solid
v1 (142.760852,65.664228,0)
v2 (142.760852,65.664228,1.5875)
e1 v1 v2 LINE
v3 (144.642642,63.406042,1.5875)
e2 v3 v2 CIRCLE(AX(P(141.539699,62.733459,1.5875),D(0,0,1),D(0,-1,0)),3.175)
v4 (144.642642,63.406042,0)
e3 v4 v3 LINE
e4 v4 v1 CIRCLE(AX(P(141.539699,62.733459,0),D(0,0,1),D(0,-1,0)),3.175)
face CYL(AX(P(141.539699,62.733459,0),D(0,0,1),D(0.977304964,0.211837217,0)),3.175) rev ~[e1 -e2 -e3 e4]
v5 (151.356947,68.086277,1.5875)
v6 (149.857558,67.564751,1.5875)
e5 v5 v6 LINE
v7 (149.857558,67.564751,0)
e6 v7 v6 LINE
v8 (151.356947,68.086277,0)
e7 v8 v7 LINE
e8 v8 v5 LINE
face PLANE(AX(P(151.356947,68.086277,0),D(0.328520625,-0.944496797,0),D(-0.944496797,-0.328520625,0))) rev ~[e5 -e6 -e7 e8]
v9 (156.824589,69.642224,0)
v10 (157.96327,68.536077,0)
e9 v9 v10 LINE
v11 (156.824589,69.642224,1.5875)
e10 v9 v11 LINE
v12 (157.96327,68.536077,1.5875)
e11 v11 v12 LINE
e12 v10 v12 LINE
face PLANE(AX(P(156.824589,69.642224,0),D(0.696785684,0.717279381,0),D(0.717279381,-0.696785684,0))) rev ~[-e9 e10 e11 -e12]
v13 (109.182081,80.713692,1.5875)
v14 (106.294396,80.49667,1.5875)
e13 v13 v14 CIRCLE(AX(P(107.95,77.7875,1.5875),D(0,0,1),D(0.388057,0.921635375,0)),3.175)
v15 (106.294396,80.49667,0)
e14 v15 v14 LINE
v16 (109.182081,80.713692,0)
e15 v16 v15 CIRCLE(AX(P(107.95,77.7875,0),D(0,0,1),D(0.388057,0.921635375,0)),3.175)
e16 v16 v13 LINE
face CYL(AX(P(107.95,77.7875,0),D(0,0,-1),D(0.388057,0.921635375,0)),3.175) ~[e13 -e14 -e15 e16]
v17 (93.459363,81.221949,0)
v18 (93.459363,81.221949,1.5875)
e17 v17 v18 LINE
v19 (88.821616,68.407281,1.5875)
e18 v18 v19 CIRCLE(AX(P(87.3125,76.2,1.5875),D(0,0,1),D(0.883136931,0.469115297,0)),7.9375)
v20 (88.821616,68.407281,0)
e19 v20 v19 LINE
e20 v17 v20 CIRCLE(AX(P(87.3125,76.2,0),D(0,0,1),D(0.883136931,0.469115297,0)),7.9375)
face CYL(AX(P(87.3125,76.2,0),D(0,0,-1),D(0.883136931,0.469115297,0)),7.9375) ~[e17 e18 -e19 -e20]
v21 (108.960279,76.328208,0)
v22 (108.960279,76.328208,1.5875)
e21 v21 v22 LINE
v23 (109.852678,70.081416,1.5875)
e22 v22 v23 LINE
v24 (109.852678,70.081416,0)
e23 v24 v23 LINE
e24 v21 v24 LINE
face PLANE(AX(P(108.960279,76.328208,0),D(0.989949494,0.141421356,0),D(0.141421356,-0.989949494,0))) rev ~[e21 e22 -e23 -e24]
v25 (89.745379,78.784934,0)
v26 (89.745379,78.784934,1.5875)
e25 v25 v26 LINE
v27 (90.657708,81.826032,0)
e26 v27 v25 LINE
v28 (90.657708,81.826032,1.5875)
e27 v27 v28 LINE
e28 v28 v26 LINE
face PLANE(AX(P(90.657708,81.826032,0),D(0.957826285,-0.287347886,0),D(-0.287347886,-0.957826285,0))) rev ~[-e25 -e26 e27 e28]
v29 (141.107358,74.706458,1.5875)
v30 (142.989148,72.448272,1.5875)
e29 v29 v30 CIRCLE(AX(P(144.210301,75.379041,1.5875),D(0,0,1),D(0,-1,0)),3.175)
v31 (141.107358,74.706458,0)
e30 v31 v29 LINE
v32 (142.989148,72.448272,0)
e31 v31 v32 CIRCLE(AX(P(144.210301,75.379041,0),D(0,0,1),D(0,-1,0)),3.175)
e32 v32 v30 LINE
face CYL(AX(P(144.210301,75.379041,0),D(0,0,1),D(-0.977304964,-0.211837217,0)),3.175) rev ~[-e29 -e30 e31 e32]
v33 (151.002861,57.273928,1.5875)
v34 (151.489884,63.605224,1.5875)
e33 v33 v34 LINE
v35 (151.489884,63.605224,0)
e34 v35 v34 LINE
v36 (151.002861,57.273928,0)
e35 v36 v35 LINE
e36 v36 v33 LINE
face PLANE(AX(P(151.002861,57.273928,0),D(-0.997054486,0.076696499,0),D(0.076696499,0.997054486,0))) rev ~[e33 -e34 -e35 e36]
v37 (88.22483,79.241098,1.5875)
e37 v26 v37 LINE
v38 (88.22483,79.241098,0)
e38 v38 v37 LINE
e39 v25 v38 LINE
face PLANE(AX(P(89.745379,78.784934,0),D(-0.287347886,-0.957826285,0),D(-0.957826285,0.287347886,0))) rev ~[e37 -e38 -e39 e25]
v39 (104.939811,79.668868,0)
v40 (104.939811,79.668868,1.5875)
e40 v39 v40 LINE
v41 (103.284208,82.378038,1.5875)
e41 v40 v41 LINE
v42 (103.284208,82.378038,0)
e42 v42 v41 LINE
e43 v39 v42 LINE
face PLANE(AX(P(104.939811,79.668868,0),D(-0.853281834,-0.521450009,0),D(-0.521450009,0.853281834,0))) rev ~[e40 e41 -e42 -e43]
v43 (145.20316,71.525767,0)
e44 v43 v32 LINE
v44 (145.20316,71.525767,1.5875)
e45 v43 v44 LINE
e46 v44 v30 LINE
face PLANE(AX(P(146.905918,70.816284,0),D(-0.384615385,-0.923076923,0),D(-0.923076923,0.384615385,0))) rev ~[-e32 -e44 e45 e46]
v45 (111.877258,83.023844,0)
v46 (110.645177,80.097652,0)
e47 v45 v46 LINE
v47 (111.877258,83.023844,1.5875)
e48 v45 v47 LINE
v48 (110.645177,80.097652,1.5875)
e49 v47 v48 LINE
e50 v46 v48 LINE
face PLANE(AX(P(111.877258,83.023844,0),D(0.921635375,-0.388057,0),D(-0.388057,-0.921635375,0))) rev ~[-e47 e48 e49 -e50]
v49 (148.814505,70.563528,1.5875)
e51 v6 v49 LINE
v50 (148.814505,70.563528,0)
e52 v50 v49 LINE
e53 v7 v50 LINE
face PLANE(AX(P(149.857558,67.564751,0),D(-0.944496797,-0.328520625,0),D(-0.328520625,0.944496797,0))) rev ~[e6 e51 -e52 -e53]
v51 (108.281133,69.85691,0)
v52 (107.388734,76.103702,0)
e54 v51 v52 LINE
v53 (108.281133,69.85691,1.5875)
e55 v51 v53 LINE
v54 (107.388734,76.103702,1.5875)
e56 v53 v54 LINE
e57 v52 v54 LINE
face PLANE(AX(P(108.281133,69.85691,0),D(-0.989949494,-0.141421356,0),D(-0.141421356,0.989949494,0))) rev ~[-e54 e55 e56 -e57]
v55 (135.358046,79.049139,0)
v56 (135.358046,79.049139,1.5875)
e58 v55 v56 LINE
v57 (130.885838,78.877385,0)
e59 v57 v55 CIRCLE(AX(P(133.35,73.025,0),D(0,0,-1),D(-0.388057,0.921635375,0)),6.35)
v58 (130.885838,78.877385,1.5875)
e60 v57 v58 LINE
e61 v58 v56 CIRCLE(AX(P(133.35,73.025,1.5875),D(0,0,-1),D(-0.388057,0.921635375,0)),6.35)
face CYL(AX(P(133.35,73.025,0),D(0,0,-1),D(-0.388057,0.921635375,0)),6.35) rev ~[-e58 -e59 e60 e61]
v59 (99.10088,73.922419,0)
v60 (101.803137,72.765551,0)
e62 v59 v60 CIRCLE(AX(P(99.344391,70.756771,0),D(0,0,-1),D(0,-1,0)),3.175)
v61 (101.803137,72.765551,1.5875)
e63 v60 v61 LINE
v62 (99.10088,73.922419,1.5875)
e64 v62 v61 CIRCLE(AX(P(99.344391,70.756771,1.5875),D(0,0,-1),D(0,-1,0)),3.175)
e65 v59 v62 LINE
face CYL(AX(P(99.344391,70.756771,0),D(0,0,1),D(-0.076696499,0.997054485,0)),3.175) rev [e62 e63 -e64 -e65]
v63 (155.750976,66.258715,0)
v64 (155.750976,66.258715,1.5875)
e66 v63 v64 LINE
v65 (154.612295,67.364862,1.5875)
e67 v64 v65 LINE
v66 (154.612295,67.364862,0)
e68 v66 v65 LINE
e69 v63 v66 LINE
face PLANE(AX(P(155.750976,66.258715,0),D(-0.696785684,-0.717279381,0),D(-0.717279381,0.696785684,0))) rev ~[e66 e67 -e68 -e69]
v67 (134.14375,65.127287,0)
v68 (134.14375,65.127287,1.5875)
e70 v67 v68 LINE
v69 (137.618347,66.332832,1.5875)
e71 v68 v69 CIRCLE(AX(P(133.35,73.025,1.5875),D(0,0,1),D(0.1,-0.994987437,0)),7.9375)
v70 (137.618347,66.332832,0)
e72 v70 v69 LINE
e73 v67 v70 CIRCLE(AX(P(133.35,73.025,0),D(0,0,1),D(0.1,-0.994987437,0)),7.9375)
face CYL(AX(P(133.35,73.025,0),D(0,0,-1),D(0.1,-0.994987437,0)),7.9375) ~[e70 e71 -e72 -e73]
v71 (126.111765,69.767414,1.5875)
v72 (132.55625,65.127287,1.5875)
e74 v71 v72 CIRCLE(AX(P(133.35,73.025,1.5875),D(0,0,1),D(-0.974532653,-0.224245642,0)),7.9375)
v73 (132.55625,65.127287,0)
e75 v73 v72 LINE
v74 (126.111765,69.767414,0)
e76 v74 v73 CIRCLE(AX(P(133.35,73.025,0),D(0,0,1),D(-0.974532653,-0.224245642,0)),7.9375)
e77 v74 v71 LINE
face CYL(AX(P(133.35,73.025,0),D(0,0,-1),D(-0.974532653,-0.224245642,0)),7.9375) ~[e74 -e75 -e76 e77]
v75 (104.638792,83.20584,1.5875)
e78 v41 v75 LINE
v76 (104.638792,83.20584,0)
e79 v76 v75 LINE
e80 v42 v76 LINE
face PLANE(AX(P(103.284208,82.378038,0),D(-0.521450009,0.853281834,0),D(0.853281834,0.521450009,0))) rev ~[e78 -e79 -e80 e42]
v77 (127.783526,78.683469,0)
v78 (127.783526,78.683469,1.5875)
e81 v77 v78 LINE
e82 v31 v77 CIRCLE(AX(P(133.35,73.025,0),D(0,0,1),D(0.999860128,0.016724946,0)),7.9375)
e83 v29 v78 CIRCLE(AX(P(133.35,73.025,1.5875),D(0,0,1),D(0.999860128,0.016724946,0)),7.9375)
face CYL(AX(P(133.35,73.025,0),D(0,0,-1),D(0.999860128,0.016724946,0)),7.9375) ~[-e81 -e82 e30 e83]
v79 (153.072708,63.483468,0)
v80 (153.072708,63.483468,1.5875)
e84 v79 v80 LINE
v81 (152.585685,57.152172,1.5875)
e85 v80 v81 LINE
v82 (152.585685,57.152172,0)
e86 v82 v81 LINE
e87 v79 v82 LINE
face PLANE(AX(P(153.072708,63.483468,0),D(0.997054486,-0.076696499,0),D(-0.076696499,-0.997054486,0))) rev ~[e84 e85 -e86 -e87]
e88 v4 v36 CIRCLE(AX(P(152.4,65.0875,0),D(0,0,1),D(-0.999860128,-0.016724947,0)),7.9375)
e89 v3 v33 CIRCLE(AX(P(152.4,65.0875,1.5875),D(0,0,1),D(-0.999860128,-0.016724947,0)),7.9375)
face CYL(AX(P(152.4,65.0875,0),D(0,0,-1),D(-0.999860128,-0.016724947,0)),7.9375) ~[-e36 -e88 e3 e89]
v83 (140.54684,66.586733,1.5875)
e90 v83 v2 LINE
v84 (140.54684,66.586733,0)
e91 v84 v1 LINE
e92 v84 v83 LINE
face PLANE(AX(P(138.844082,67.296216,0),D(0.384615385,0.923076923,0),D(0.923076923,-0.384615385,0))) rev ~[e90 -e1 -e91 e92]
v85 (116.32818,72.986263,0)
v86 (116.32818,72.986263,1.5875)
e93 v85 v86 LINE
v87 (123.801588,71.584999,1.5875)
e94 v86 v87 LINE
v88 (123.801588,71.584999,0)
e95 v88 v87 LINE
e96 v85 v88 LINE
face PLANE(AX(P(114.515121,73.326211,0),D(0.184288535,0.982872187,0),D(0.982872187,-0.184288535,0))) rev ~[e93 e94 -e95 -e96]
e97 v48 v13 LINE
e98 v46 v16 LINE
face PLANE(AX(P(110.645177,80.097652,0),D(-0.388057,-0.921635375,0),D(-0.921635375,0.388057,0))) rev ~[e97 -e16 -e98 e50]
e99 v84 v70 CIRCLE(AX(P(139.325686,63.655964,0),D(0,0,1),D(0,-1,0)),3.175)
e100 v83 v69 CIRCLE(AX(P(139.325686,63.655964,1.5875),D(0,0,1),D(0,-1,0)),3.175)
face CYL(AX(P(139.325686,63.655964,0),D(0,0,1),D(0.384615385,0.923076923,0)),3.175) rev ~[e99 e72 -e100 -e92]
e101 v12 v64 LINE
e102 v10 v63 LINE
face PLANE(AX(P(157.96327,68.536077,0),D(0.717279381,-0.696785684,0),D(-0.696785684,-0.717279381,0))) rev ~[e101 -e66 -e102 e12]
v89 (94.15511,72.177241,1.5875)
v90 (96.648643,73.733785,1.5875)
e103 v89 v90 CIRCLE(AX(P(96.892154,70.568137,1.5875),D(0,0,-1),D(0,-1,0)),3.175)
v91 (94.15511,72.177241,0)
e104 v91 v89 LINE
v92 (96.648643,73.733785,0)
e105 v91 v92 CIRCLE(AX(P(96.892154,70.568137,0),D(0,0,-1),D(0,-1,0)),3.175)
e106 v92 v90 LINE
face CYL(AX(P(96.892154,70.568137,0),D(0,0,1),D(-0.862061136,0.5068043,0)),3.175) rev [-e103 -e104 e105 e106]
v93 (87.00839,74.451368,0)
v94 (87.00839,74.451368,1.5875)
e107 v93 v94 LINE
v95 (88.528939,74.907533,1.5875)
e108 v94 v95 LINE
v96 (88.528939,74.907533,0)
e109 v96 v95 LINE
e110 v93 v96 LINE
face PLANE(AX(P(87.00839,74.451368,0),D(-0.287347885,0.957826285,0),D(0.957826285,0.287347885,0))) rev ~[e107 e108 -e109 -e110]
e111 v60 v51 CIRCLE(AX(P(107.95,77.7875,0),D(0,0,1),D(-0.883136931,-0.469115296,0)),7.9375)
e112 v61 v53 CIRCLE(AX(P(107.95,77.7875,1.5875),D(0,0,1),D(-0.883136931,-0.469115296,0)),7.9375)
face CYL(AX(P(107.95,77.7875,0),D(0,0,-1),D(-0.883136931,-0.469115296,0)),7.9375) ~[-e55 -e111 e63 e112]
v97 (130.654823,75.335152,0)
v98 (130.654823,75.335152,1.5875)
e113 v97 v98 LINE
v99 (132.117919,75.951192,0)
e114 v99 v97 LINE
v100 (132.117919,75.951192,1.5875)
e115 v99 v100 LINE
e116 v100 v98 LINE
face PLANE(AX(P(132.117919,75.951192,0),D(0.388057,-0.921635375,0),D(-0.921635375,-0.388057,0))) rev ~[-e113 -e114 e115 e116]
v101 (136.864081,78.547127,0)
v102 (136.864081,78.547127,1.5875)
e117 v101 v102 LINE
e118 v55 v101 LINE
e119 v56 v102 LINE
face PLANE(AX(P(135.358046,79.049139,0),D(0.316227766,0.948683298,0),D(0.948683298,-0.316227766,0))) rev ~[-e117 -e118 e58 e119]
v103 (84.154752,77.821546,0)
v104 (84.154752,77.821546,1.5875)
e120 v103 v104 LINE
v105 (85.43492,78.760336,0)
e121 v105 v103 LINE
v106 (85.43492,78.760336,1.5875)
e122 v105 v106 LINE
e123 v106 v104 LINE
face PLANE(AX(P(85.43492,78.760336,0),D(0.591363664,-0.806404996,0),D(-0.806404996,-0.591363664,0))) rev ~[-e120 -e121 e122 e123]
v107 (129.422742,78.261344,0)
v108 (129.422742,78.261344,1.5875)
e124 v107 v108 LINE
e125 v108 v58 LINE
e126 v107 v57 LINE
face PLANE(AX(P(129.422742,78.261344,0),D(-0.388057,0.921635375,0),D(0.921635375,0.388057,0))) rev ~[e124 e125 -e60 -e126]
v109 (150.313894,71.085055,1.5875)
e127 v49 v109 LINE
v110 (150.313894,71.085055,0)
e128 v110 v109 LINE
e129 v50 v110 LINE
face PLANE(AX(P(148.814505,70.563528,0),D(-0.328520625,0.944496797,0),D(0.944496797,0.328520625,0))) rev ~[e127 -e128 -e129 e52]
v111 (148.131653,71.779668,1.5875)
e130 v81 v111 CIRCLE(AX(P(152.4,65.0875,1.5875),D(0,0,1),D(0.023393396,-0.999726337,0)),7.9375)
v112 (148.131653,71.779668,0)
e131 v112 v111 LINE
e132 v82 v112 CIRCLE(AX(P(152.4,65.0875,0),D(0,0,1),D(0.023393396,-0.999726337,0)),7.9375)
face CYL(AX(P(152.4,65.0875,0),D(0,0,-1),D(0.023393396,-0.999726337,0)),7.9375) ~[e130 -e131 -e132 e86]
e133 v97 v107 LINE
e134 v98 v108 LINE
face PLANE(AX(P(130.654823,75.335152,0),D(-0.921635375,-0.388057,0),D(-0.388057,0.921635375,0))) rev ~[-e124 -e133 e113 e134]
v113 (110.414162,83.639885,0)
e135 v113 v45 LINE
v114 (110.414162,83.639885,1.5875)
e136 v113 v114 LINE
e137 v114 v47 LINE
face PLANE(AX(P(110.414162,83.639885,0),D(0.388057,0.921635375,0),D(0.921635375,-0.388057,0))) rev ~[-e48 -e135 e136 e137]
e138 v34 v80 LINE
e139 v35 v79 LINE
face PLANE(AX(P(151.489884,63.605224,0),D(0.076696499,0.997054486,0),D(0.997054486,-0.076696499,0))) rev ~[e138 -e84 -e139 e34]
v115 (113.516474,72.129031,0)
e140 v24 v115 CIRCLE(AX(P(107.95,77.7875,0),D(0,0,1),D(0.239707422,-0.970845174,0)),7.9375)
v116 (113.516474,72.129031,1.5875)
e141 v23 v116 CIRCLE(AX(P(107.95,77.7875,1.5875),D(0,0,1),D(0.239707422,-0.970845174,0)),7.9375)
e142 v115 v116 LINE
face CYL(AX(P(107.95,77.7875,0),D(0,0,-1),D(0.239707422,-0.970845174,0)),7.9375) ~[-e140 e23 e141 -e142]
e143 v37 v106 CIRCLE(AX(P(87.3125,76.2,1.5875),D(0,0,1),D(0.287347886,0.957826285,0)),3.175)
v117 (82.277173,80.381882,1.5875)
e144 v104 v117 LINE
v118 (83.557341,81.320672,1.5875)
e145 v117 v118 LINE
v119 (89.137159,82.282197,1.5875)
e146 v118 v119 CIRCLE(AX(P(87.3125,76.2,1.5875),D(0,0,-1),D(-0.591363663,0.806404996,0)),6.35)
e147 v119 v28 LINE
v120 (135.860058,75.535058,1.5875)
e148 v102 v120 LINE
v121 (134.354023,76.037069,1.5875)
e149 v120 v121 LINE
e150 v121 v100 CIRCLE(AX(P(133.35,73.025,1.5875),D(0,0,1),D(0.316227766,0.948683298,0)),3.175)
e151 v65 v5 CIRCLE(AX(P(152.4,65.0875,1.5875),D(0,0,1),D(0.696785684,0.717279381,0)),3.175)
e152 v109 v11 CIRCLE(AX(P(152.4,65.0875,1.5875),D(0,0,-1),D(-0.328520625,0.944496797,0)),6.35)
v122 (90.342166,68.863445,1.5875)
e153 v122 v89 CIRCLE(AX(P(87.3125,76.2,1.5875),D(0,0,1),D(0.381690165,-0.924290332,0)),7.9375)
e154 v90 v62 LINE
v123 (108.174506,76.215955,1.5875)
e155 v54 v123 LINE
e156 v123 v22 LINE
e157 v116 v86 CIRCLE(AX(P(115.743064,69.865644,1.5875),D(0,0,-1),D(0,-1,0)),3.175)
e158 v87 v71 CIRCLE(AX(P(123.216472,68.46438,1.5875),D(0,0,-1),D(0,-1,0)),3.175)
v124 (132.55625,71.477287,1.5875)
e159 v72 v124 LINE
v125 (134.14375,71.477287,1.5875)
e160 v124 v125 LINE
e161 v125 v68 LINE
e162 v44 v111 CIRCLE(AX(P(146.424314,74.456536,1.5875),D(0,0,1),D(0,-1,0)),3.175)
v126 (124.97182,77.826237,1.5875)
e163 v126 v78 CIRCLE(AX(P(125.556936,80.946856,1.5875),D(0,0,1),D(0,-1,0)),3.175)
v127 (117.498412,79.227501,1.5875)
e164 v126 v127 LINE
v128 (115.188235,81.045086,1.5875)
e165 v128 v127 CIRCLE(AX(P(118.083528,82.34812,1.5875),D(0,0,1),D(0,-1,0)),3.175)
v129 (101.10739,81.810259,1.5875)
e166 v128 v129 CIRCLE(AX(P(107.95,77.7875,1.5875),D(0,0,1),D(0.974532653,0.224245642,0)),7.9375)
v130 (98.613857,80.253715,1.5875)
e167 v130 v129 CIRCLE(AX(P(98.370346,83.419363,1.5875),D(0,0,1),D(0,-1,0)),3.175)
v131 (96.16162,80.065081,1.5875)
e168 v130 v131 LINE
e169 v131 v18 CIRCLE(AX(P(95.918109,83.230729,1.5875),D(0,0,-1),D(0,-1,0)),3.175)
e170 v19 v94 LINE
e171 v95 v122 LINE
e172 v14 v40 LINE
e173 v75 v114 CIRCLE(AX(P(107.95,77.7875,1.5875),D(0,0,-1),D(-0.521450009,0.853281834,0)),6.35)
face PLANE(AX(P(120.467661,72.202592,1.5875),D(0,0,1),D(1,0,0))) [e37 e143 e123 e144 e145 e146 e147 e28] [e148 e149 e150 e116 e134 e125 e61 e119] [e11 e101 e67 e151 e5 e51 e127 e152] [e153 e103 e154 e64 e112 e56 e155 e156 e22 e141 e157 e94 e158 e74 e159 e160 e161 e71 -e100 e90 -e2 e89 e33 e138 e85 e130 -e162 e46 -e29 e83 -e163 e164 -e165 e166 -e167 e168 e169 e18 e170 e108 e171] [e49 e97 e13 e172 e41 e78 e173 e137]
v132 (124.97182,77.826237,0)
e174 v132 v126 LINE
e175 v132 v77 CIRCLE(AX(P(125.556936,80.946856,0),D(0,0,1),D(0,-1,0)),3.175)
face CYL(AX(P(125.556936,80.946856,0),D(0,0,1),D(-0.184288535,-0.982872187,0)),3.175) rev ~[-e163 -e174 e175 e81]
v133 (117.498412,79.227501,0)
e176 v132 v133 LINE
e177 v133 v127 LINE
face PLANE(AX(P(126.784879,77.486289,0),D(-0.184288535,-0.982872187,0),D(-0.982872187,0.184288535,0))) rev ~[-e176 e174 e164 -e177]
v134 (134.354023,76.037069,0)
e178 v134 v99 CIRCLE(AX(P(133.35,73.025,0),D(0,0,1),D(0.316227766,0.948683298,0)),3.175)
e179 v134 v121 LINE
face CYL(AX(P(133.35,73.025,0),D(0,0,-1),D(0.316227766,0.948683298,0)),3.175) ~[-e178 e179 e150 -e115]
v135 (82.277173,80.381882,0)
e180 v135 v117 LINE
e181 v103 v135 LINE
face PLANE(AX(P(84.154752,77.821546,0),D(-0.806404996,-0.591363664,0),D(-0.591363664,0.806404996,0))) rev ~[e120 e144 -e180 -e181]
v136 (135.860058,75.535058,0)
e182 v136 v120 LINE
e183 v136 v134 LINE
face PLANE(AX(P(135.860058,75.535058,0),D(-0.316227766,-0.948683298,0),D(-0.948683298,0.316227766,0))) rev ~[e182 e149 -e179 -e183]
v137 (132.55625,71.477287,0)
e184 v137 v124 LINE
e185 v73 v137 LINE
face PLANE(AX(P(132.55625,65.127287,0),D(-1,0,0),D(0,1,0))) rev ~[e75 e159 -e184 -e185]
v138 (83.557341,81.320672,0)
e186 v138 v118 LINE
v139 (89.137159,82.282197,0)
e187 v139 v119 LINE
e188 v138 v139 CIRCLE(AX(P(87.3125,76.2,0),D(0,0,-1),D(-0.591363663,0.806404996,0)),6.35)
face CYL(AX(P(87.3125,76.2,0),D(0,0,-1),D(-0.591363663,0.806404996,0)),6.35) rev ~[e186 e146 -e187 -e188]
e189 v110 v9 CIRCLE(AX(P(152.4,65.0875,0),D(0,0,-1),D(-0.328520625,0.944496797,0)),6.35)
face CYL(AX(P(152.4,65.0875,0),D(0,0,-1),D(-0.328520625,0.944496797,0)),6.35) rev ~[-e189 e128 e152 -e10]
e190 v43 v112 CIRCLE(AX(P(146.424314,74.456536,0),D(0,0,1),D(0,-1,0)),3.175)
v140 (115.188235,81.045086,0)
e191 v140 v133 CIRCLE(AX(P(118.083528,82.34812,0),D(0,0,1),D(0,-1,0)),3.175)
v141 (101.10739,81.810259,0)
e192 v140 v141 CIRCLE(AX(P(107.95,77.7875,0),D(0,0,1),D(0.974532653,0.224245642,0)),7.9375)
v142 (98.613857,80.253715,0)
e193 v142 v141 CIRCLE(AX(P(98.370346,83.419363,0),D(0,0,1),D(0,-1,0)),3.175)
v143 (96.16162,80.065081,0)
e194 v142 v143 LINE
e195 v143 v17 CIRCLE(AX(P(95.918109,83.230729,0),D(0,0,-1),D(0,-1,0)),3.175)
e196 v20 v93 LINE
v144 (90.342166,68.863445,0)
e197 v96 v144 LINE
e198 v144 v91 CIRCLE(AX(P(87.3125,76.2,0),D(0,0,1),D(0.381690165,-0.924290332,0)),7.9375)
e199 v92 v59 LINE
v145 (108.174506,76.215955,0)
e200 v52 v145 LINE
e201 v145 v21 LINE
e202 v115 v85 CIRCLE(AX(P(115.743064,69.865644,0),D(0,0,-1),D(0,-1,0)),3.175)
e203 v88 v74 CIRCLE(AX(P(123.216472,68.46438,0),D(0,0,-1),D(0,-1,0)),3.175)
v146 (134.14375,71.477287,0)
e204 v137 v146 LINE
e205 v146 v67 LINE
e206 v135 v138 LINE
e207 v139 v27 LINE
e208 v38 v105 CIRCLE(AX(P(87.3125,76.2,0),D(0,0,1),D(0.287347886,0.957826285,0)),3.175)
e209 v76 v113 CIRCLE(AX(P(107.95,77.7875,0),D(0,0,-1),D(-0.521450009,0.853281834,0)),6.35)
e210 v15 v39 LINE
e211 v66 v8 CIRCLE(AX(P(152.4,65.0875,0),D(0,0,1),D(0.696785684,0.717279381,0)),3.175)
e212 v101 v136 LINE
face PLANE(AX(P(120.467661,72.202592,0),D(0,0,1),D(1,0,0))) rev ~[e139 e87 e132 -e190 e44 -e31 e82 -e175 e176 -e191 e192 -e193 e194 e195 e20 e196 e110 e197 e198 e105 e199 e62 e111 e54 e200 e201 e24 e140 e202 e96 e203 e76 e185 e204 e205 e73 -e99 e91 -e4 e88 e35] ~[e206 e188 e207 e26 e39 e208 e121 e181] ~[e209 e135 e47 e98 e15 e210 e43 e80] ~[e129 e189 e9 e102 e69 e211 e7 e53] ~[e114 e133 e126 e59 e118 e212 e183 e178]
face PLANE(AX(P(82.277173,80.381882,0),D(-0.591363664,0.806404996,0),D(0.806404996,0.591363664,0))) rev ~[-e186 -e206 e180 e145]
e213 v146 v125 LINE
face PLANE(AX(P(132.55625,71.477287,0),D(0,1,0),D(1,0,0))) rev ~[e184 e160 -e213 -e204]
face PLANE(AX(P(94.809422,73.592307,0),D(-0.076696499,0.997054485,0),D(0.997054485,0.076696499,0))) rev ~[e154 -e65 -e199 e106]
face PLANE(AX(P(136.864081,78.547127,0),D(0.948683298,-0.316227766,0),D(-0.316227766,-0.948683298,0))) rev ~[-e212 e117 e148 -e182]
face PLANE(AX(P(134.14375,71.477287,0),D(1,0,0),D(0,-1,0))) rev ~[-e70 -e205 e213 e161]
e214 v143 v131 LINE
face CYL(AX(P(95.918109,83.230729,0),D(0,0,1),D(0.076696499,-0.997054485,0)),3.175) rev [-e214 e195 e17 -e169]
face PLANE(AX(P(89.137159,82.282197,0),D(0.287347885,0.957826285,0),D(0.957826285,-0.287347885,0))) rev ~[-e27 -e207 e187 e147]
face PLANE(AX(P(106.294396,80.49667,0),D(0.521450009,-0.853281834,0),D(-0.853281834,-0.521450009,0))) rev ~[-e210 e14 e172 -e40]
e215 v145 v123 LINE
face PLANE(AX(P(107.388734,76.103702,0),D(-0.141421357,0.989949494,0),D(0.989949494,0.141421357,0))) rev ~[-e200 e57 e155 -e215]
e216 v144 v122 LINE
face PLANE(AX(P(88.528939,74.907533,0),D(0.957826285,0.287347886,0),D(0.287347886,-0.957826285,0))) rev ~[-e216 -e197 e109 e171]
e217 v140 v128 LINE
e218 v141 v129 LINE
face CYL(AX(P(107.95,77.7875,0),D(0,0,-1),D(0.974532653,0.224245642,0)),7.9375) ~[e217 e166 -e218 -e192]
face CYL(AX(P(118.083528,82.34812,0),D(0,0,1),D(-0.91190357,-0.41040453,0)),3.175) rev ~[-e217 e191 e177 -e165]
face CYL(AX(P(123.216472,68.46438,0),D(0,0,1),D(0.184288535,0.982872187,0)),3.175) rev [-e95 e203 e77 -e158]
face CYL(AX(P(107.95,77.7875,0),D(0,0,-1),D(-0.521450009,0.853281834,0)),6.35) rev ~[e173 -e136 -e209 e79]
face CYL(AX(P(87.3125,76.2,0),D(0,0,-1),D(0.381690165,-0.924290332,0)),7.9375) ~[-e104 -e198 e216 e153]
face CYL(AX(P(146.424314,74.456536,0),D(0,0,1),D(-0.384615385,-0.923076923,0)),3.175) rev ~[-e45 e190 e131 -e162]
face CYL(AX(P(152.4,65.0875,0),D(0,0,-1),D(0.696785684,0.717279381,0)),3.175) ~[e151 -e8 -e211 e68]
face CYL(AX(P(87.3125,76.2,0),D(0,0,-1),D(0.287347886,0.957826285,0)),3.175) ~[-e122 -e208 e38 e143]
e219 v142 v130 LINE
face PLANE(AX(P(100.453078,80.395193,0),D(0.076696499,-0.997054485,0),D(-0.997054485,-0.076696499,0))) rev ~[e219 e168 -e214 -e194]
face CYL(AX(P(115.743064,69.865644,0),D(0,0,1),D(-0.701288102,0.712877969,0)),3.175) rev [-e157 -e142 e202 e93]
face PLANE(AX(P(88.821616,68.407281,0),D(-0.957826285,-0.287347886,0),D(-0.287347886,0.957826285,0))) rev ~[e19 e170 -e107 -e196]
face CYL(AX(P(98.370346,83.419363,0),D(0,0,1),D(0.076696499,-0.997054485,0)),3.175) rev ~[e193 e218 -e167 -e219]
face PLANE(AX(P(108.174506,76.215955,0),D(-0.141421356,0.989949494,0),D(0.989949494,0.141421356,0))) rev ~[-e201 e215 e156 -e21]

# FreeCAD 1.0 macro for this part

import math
import FreeCAD as App
import Part
import Sketcher
Q = App.Units.Quantity


def edges_at(feature, points):
    """Names of the edges that pass closest to the given points."""
    edges = feature.Shape.Edges
    near = lambda p: min(range(len(edges)), key=lambda i: edges[i].distToShape(Part.Vertex(*p))[0])
    return sorted({f"Edge{near(p) + 1}" for p in points})

doc = App.newDocument("Part")
body = doc.addObject("PartDesign::Body", "Body")

sketch1 = body.newObject("Sketcher::SketchObject", "Sketch")
sketch1.AttachmentSupport = (doc.getObject("XY_Plane"), [""])
sketch1.MapMode = "FlatFace"
sketch1.addGeometry(Part.LineSegment(App.Vector(100.453078, 80.395193, 0), App.Vector(94.322399, 79.923603, 0)), False)
sketch1.addGeometry(Part.ArcOfCircle(Part.Circle(App.Vector(87.3125, 76.2, 0), App.Vector(0, 0, 1), 7.9375), math.radians(27.976884), math.radians(280.960074)), False)
sketch1.addGeometry(Part.LineSegment(App.Vector(88.821616, 68.407281, 0), App.Vector(87.00839, 74.451368, 0)), False)
sketch1.addGeometry(Part.LineSegment(App.Vector(87.00839, 74.451368, 0), App.Vector(88.528939, 74.907533, 0)), False)
sketch1.addGeometry(Part.LineSegment(App.Vector(88.528939, 74.907533, 0), App.Vector(90.342166, 68.863445, 0)), False)
sketch1.addGeometry(Part.ArcOfCircle(Part.Circle(App.Vector(87.3125, 76.2, 0), App.Vector(0, 0, 1), 7.9375), math.radians(-67.561585), math.radians(-19.179473)), False)
sketch1.addGeometry(Part.LineSegment(App.Vector(94.809422, 73.592307, 0), App.Vector(100.940101, 74.063897, 0)), False)
sketch1.addGeometry(Part.ArcOfCircle(Part.Circle(App.Vector(107.95, 77.7875, 0), App.Vector(0, 0, 1), 7.9375), math.radians(-152.023116), math.radians(-87.609068)), False)
sketch1.addGeometry(Part.LineSegment(App.Vector(108.281133, 69.85691, 0), App.Vector(107.388734, 76.103702, 0)), False)
sketch1.addGeometry(Part.LineSegment(App.Vector(107.388734, 76.103702, 0), App.Vector(108.174506, 76.215955, 0)), False)
sketch1.addGeometry(Part.LineSegment(App.Vector(108.174506, 76.215955, 0), App.Vector(108.960279, 76.328208, 0)), False)
sketch1.addGeometry(Part.LineSegment(App.Vector(108.960279, 76.328208, 0), App.Vector(109.852678, 70.081416, 0)), False)
sketch1.addGeometry(Part.ArcOfCircle(Part.Circle(App.Vector(107.95, 77.7875, 0), App.Vector(0, 0, 1), 7.9375), math.radians(-76.130727), math.radians(-34.197834)), False)
sketch1.addGeometry(Part.LineSegment(App.Vector(114.515121, 73.326211, 0), App.Vector(125.614647, 71.24505, 0)), False)
sketch1.addGeometry(Part.ArcOfCircle(Part.Circle(App.Vector(133.35, 73.025, 0), App.Vector(0, 0, 1), 7.9375), math.radians(-167.041477), math.radians(-95.73917)), False)
sketch1.addGeometry(Part.LineSegment(App.Vector(132.55625, 65.127287, 0), App.Vector(132.55625, 71.477287, 0)), False)
sketch1.addGeometry(Part.LineSegment(App.Vector(132.55625, 71.477287, 0), App.Vector(134.14375, 71.477287, 0)), False)
sketch1.addGeometry(Part.LineSegment(App.Vector(134.14375, 71.477287, 0), App.Vector(134.14375, 65.127287, 0)), False)
sketch1.addGeometry(Part.ArcOfCircle(Part.Circle(App.Vector(133.35, 73.025, 0), App.Vector(0, 0, 1), 7.9375), math.radians(-84.26083), math.radians(-46.198043)), False)
sketch1.addGeometry(Part.LineSegment(App.Vector(138.844082, 67.296216, 0), App.Vector(144.46361, 64.954746, 0)), False)
sketch1.addGeometry(Part.ArcOfCircle(Part.Circle(App.Vector(152.4, 65.0875, 0), App.Vector(0, 0, 1), 7.9375), math.radians(-179.041686), math.radians(-100.137876)), False)
sketch1.addGeometry(Part.LineSegment(App.Vector(151.002861, 57.273928, 0), App.Vector(151.489884, 63.605224, 0)), False)
sketch1.addGeometry(Part.LineSegment(App.Vector(151.489884, 63.605224, 0), App.Vector(153.072708, 63.483468, 0)), False)
sketch1.addGeometry(Part.LineSegment(App.Vector(153.072708, 63.483468, 0), App.Vector(152.585685, 57.152172, 0)), False)
sketch1.addGeometry(Part.ArcOfCircle(Part.Circle(App.Vector(152.4, 65.0875, 0), App.Vector(0, 0, 1), 7.9375), math.radians(-88.659535), math.radians(133.801957)), False)
sketch1.addGeometry(Part.LineSegment(App.Vector(146.905918, 70.816284, 0), App.Vector(141.28639, 73.157754, 0)), False)
sketch1.addGeometry(Part.ArcOfCircle(Part.Circle(App.Vector(133.35, 73.025, 0), App.Vector(0, 0, 1), 7.9375), math.radians(0.958314), math.radians(145.802166)), False)
sketch1.addGeometry(Part.LineSegment(App.Vector(126.784879, 77.486289, 0), App.Vector(115.685353, 79.56745, 0)), False)
sketch1.addGeometry(Part.ArcOfCircle(Part.Circle(App.Vector(107.95, 77.7875, 0), App.Vector(0, 0, 1), 7.9375), math.radians(12.958523), math.radians(160.820527)), False)
sketch1.addGeometry(Part.LineSegment(App.Vector(155.750976, 66.258715, 0), App.Vector(154.612295, 67.364862, 0)), False)
sketch1.addGeometry(Part.ArcOfCircle(Part.Circle(App.Vector(152.4, 65.0875, 0), App.Vector(0, 0, 1), 3.175), math.radians(45.830315), math.radians(109.179008)), False)
sketch1.addGeometry(Part.LineSegment(App.Vector(151.356947, 68.086277, 0), App.Vector(149.857558, 67.564751, 0)), False)
sketch1.addGeometry(Part.LineSegment(App.Vector(149.857558, 67.564751, 0), App.Vector(148.814505, 70.563528, 0)), False)
sketch1.addGeometry(Part.LineSegment(App.Vector(148.814505, 70.563528, 0), App.Vector(150.313894, 71.085055, 0)), False)
sketch1.addGeometry(Part.ArcOfCircle(Part.Circle(App.Vector(152.4, 65.0875, 0), App.Vector(0, 0, 1), 6.35), math.radians(45.830315), math.radians(109.179008)), False)
sketch1.addGeometry(Part.LineSegment(App.Vector(156.824589, 69.642224, 0), App.Vector(157.96327, 68.536077, 0)), False)
sketch1.addGeometry(Part.LineSegment(App.Vector(157.96327, 68.536077, 0), App.Vector(155.750976, 66.258715, 0)), False)
sketch1.addGeometry(Part.LineSegment(App.Vector(82.277173, 80.381882, 0), App.Vector(83.557341, 81.320672, 0)), False)
sketch1.addGeometry(Part.ArcOfCircle(Part.Circle(App.Vector(87.3125, 76.2, 0), App.Vector(0, 0, 1), 6.35), math.radians(73.300756), math.radians(126.253838)), False)
sketch1.addGeometry(Part.LineSegment(App.Vector(89.137159, 82.282197, 0), App.Vector(90.657708, 81.826032, 0)), False)
sketch1.addGeometry(Part.LineSegment(App.Vector(90.657708, 81.826032, 0), App.Vector(89.745379, 78.784934, 0)), False)
sketch1.addGeometry(Part.LineSegment(App.Vector(89.745379, 78.784934, 0), App.Vector(88.22483, 79.241098, 0)), False)
sketch1.addGeometry(Part.ArcOfCircle(Part.Circle(App.Vector(87.3125, 76.2, 0), App.Vector(0, 0, 1), 3.175), math.radians(73.300756), math.radians(126.253838)), False)
sketch1.addGeometry(Part.LineSegment(App.Vector(85.43492, 78.760336, 0), App.Vector(84.154752, 77.821546, 0)), False)
sketch1.addGeometry(Part.LineSegment(App.Vector(84.154752, 77.821546, 0), App.Vector(82.277173, 80.381882, 0)), False)
sketch1.addGeometry(Part.LineSegment(App.Vector(110.645177, 80.097652, 0), App.Vector(109.182081, 80.713692, 0)), False)
sketch1.addGeometry(Part.ArcOfCircle(Part.Circle(App.Vector(107.95, 77.7875, 0), App.Vector(0, 0, 1), 3.175), math.radians(67.166346), math.radians(121.429566)), False)
sketch1.addGeometry(Part.LineSegment(App.Vector(106.294396, 80.49667, 0), App.Vector(104.939811, 79.668868, 0)), False)
sketch1.addGeometry(Part.LineSegment(App.Vector(104.939811, 79.668868, 0), App.Vector(103.284208, 82.378038, 0)), False)
sketch1.addGeometry(Part.LineSegment(App.Vector(103.284208, 82.378038, 0), App.Vector(104.638792, 83.20584, 0)), False)
sketch1.addGeometry(Part.ArcOfCircle(Part.Circle(App.Vector(107.95, 77.7875, 0), App.Vector(0, 0, 1), 6.35), math.radians(67.166346), math.radians(121.429566)), False)
sketch1.addGeometry(Part.LineSegment(App.Vector(110.414162, 83.639885, 0), App.Vector(111.877258, 83.023844, 0)), False)
sketch1.addGeometry(Part.LineSegment(App.Vector(111.877258, 83.023844, 0), App.Vector(110.645177, 80.097652, 0)), False)
sketch1.addGeometry(Part.LineSegment(App.Vector(135.860058, 75.535058, 0), App.Vector(134.354023, 76.037069, 0)), False)
sketch1.addGeometry(Part.ArcOfCircle(Part.Circle(App.Vector(133.35, 73.025, 0), App.Vector(0, 0, 1), 3.175), math.radians(71.565051), math.radians(112.833654)), False)
sketch1.addGeometry(Part.LineSegment(App.Vector(132.117919, 75.951192, 0), App.Vector(130.654823, 75.335152, 0)), False)
sketch1.addGeometry(Part.LineSegment(App.Vector(130.654823, 75.335152, 0), App.Vector(129.422742, 78.261344, 0)), False)
sketch1.addGeometry(Part.LineSegment(App.Vector(129.422742, 78.261344, 0), App.Vector(130.885838, 78.877385, 0)), False)
sketch1.addGeometry(Part.ArcOfCircle(Part.Circle(App.Vector(133.35, 73.025, 0), App.Vector(0, 0, 1), 6.35), math.radians(71.565051), math.radians(112.833654)), False)
sketch1.addGeometry(Part.LineSegment(App.Vector(135.358046, 79.049139, 0), App.Vector(136.864081, 78.547127, 0)), False)
sketch1.addGeometry(Part.LineSegment(App.Vector(136.864081, 78.547127, 0), App.Vector(135.860058, 75.535058, 0)), False)
sketch1.addConstraint(Sketcher.Constraint("Coincident", 0, 2, 1, 1))
sketch1.addConstraint(Sketcher.Constraint("Coincident", 1, 2, 2, 1))
sketch1.addConstraint(Sketcher.Constraint("Coincident", 2, 2, 3, 1))
sketch1.addConstraint(Sketcher.Constraint("Coincident", 3, 2, 4, 1))
sketch1.addConstraint(Sketcher.Constraint("Coincident", 4, 2, 5, 1))
sketch1.addConstraint(Sketcher.Constraint("Coincident", 5, 2, 6, 1))
sketch1.addConstraint(Sketcher.Constraint("Coincident", 6, 2, 7, 1))
sketch1.addConstraint(Sketcher.Constraint("Coincident", 7, 2, 8, 1))
sketch1.addConstraint(Sketcher.Constraint("Coincident", 8, 2, 9, 1))
sketch1.addConstraint(Sketcher.Constraint("Coincident", 9, 2, 10, 1))
sketch1.addConstraint(Sketcher.Constraint("Coincident", 10, 2, 11, 1))
sketch1.addConstraint(Sketcher.Constraint("Coincident", 11, 2, 12, 1))
sketch1.addConstraint(Sketcher.Constraint("Coincident", 12, 2, 13, 1))
sketch1.addConstraint(Sketcher.Constraint("Coincident", 13, 2, 14, 1))
sketch1.addConstraint(Sketcher.Constraint("Coincident", 14, 2, 15, 1))
sketch1.addConstraint(Sketcher.Constraint("Coincident", 15, 2, 16, 1))
sketch1.addConstraint(Sketcher.Constraint("Coincident", 16, 2, 17, 1))
sketch1.addConstraint(Sketcher.Constraint("Coincident", 17, 2, 18, 1))
sketch1.addConstraint(Sketcher.Constraint("Coincident", 18, 2, 19, 1))
sketch1.addConstraint(Sketcher.Constraint("Coincident", 19, 2, 20, 1))
sketch1.addConstraint(Sketcher.Constraint("Coincident", 20, 2, 21, 1))
sketch1.addConstraint(Sketcher.Constraint("Coincident", 21, 2, 22, 1))
sketch1.addConstraint(Sketcher.Constraint("Coincident", 22, 2, 23, 1))
sketch1.addConstraint(Sketcher.Constraint("Coincident", 23, 2, 24, 1))
sketch1.addConstraint(Sketcher.Constraint("Coincident", 24, 2, 25, 1))
sketch1.addConstraint(Sketcher.Constraint("Coincident", 25, 2, 26, 1))
sketch1.addConstraint(Sketcher.Constraint("Coincident", 26, 2, 27, 1))
sketch1.addConstraint(Sketcher.Constraint("Coincident", 27, 2, 28, 1))
sketch1.addConstraint(Sketcher.Constraint("Coincident", 28, 2, 0, 1))
sketch1.addConstraint(Sketcher.Constraint("Coincident", 29, 2, 30, 1))
sketch1.addConstraint(Sketcher.Constraint("Coincident", 30, 2, 31, 1))
sketch1.addConstraint(Sketcher.Constraint("Coincident", 31, 2, 32, 1))
sketch1.addConstraint(Sketcher.Constraint("Coincident", 32, 2, 33, 1))
sketch1.addConstraint(Sketcher.Constraint("Coincident", 33, 2, 34, 2))
sketch1.addConstraint(Sketcher.Constraint("Coincident", 34, 1, 35, 1))
sketch1.addConstraint(Sketcher.Constraint("Coincident", 35, 2, 36, 1))
sketch1.addConstraint(Sketcher.Constraint("Coincident", 36, 2, 29, 1))
sketch1.addConstraint(Sketcher.Constraint("Coincident", 37, 2, 38, 2))
sketch1.addConstraint(Sketcher.Constraint("Coincident", 38, 1, 39, 1))
sketch1.addConstraint(Sketcher.Constraint("Coincident", 39, 2, 40, 1))
sketch1.addConstraint(Sketcher.Constraint("Coincident", 40, 2, 41, 1))
sketch1.addConstraint(Sketcher.Constraint("Coincident", 41, 2, 42, 1))
sketch1.addConstraint(Sketcher.Constraint("Coincident", 42, 2, 43, 1))
sketch1.addConstraint(Sketcher.Constraint("Coincident", 43, 2, 44, 1))
sketch1.addConstraint(Sketcher.Constraint("Coincident", 44, 2, 37, 1))
sketch1.addConstraint(Sketcher.Constraint("Coincident", 45, 2, 46, 1))
sketch1.addConstraint(Sketcher.Constraint("Coincident", 46, 2, 47, 1))
sketch1.addConstraint(Sketcher.Constraint("Coincident", 47, 2, 48, 1))
sketch1.addConstraint(Sketcher.Constraint("Coincident", 48, 2, 49, 1))
sketch1.addConstraint(Sketcher.Constraint("Coincident", 49, 2, 50, 2))
sketch1.addConstraint(Sketcher.Constraint("Coincident", 50, 1, 51, 1))
sketch1.addConstraint(Sketcher.Constraint("Coincident", 51, 2, 52, 1))
sketch1.addConstraint(Sketcher.Constraint("Coincident", 52, 2, 45, 1))
sketch1.addConstraint(Sketcher.Constraint("Coincident", 53, 2, 54, 1))
sketch1.addConstraint(Sketcher.Constraint("Coincident", 54, 2, 55, 1))
sketch1.addConstraint(Sketcher.Constraint("Coincident", 55, 2, 56, 1))
sketch1.addConstraint(Sketcher.Constraint("Coincident", 56, 2, 57, 1))
sketch1.addConstraint(Sketcher.Constraint("Coincident", 57, 2, 58, 2))
sketch1.addConstraint(Sketcher.Constraint("Coincident", 58, 1, 59, 1))
sketch1.addConstraint(Sketcher.Constraint("Coincident", 59, 2, 60, 1))
sketch1.addConstraint(Sketcher.Constraint("Coincident", 60, 2, 53, 1))
sketch1.addConstraint(Sketcher.Constraint("Vertical", 15))
sketch1.addConstraint(Sketcher.Constraint("Horizontal", 16))
sketch1.addConstraint(Sketcher.Constraint("Vertical", 17))
sketch1.addConstraint(Sketcher.Constraint("Coincident", 5, 3, 1, 3))
sketch1.addConstraint(Sketcher.Constraint("Coincident", 12, 3, 7, 3))
sketch1.addConstraint(Sketcher.Constraint("Coincident", 18, 3, 14, 3))
sketch1.addConstraint(Sketcher.Constraint("Coincident", 24, 3, 20, 3))
sketch1.addConstraint(Sketcher.Constraint("Coincident", 26, 3, 14, 3))
sketch1.addConstraint(Sketcher.Constraint("Coincident", 28, 3, 7, 3))
sketch1.addConstraint(Sketcher.Constraint("Coincident", 30, 3, 20, 3))
sketch1.addConstraint(Sketcher.Constraint("Coincident", 34, 3, 20, 3))
sketch1.addConstraint(Sketcher.Constraint("Coincident", 38, 3, 1, 3))
sketch1.addConstraint(Sketcher.Constraint("Coincident", 42, 3, 1, 3))
sketch1.addConstraint(Sketcher.Constraint("Coincident", 46, 3, 7, 3))
sketch1.addConstraint(Sketcher.Constraint("Coincident", 50, 3, 7, 3))
sketch1.addConstraint(Sketcher.Constraint("Coincident", 54, 3, 14, 3))
sketch1.addConstraint(Sketcher.Constraint("Coincident", 58, 3, 14, 3))
sketch1.addConstraint(Sketcher.Constraint("Radius", 34, Q("0.25 in")))
sketch1.addConstraint(Sketcher.Constraint("Radius", 38, Q("0.25 in")))
sketch1.addConstraint(Sketcher.Constraint("Radius", 50, Q("0.25 in")))
sketch1.addConstraint(Sketcher.Constraint("Radius", 58, Q("0.25 in")))
sketch1.addConstraint(Sketcher.Constraint("DistanceY", -1, 1, 1, 3, Q("3 in")))
sketch1.addConstraint(Sketcher.Constraint("DistanceX", -1, 1, 20, 3, Q("6 in")))
sketch1.addConstraint(Sketcher.Constraint("Radius", 1, Q("0.3125 in")))
sketch1.addConstraint(Sketcher.Constraint("Radius", 5, Q("0.3125 in")))
sketch1.addConstraint(Sketcher.Constraint("Radius", 7, Q("0.3125 in")))
sketch1.addConstraint(Sketcher.Constraint("Radius", 12, Q("0.3125 in")))
sketch1.addConstraint(Sketcher.Constraint("Radius", 14, Q("0.3125 in")))
sketch1.addConstraint(Sketcher.Constraint("Radius", 18, Q("0.3125 in")))
sketch1.addConstraint(Sketcher.Constraint("Radius", 20, Q("0.3125 in")))
sketch1.addConstraint(Sketcher.Constraint("Radius", 24, Q("0.3125 in")))
sketch1.addConstraint(Sketcher.Constraint("Radius", 26, Q("0.3125 in")))
sketch1.addConstraint(Sketcher.Constraint("Radius", 28, Q("0.3125 in")))
sketch1.addConstraint(Sketcher.Constraint("Radius", 30, Q("0.125 in")))
sketch1.addConstraint(Sketcher.Constraint("Radius", 42, Q("0.125 in")))
sketch1.addConstraint(Sketcher.Constraint("Radius", 46, Q("0.125 in")))
sketch1.addConstraint(Sketcher.Constraint("Radius", 54, Q("0.125 in")))
sketch1.addConstraint(Sketcher.Constraint("DistanceY", 15, 1, 15, 2, Q("0.25 in")))
sketch1.addConstraint(Sketcher.Constraint("DistanceY", 17, 2, 17, 1, Q("0.25 in")))
sketch1.addConstraint(Sketcher.Constraint("Distance", 21, Q("0.25 in")))
sketch1.addConstraint(Sketcher.Constraint("Distance", 23, Q("0.25 in")))
sketch1.addConstraint(Sketcher.Constraint("DistanceX", 16, 1, 16, 2, Q("0.0625 in")))
sketch1.addConstraint(Sketcher.Constraint("DistanceX", -1, 1, 7, 3, Q("4.25 in")))
sketch1.addConstraint(Sketcher.Constraint("DistanceX", -1, 1, 14, 3, Q("5.25 in")))
sketch1.addConstraint(Sketcher.Constraint("Distance", 3, Q("0.0625 in")))
sketch1.addConstraint(Sketcher.Constraint("Distance", 9, Q("0.03125 in")))
sketch1.addConstraint(Sketcher.Constraint("Distance", 10, Q("0.03125 in")))
sketch1.addConstraint(Sketcher.Constraint("Distance", 22, Q("0.0625 in")))
sketch1.addConstraint(Sketcher.Constraint("Distance", 29, Q("0.0625 in")))
sketch1.addConstraint(Sketcher.Constraint("Distance", 31, Q("0.0625 in")))
sketch1.addConstraint(Sketcher.Constraint("Distance", 32, Q("0.125 in")))
sketch1.addConstraint(Sketcher.Constraint("Distance", 33, Q("0.0625 in")))
sketch1.addConstraint(Sketcher.Constraint("Distance", 35, Q("0.0625 in")))
sketch1.addConstraint(Sketcher.Constraint("Distance", 36, Q("0.125 in")))
sketch1.addConstraint(Sketcher.Constraint("Distance", 37, Q("0.0625 in")))
sketch1.addConstraint(Sketcher.Constraint("Distance", 39, Q("0.0625 in")))
sketch1.addConstraint(Sketcher.Constraint("Distance", 40, Q("0.125 in")))
sketch1.addConstraint(Sketcher.Constraint("Distance", 41, Q("0.0625 in")))
sketch1.addConstraint(Sketcher.Constraint("Distance", 43, Q("0.0625 in")))
sketch1.addConstraint(Sketcher.Constraint("Distance", 44, Q("0.125 in")))
sketch1.addConstraint(Sketcher.Constraint("Distance", 45, Q("0.0625 in")))
sketch1.addConstraint(Sketcher.Constraint("Distance", 47, Q("0.0625 in")))
sketch1.addConstraint(Sketcher.Constraint("Distance", 48, Q("0.125 in")))
sketch1.addConstraint(Sketcher.Constraint("Distance", 49, Q("0.0625 in")))
sketch1.addConstraint(Sketcher.Constraint("Distance", 51, Q("0.0625 in")))
sketch1.addConstraint(Sketcher.Constraint("Distance", 52, Q("0.125 in")))
sketch1.addConstraint(Sketcher.Constraint("Distance", 53, Q("0.0625 in")))
sketch1.addConstraint(Sketcher.Constraint("Distance", 55, Q("0.0625 in")))
sketch1.addConstraint(Sketcher.Constraint("Distance", 56, Q("0.125 in")))
sketch1.addConstraint(Sketcher.Constraint("Distance", 57, Q("0.0625 in")))
sketch1.addConstraint(Sketcher.Constraint("Distance", 59, Q("0.0625 in")))
sketch1.addConstraint(Sketcher.Constraint("Distance", 60, Q("0.125 in")))
sketch1.addConstraint(Sketcher.Constraint("DistanceX", -1, 1, 1, 3, Q("3.4375 in")))
sketch1.addConstraint(Sketcher.Constraint("DistanceY", -1, 1, 7, 3, Q("3.0625 in")))
sketch1.addConstraint(Sketcher.Constraint("DistanceY", -1, 1, 14, 3, Q("2.875 in")))
sketch1.addConstraint(Sketcher.Constraint("DistanceY", -1, 1, 20, 3, Q("2.5625 in")))
sketch1.addConstraint(Sketcher.Constraint("DistanceY", -1, 1, 1, 2, Q("2.6932 in")))
sketch1.addConstraint(Sketcher.Constraint("DistanceX", -1, 1, 0, 2, 94.322399))
sketch1.addConstraint(Sketcher.Constraint("DistanceX", -1, 1, 6, 2, 100.940101))
sketch1.addConstraint(Sketcher.Constraint("DistanceY", -1, 1, 8, 2, 76.103702))
sketch1.addConstraint(Sketcher.Constraint("DistanceY", -1, 1, 41, 2, 79.241098))
sketch1.addConstraint(Sketcher.Constraint("Distance", 0, 6.14879))
sketch1.addConstraint(Sketcher.Constraint("Distance", 6, 6.14879))
sketch1.addConstraint(Sketcher.Constraint("Distance", 13, 11.29295))
sketch1.addConstraint(Sketcher.Constraint("Distance", 27, 11.29295))
sketch1.addConstraint(Sketcher.Constraint("DistanceX", -1, 1, 2, 2, 87.00839))
sketch1.addConstraint(Sketcher.Constraint("DistanceY", -1, 1, 2, 2, 74.451368))
sketch1.addConstraint(Sketcher.Constraint("DistanceX", -1, 1, 3, 2, 88.528939))
sketch1.addConstraint(Sketcher.Constraint("DistanceY", -1, 1, 7, 2, 69.85691))
sketch1.addConstraint(Sketcher.Constraint("DistanceX", -1, 1, 10, 2, 108.960279))
sketch1.addConstraint(Sketcher.Constraint("DistanceY", -1, 1, 10, 2, 76.328208))
sketch1.addConstraint(Sketcher.Constraint("DistanceX", -1, 1, 12, 2, 114.515121))
sketch1.addConstraint(Sketcher.Constraint("DistanceX", -1, 1, 19, 2, 144.46361))
sketch1.addConstraint(Sketcher.Constraint("DistanceX", -1, 1, 20, 2, 151.002861))
sketch1.addConstraint(Sketcher.Constraint("DistanceY", -1, 1, 22, 2, 63.483468))
sketch1.addConstraint(Sketcher.Constraint("DistanceX", -1, 1, 25, 2, 141.28639))
sketch1.addConstraint(Sketcher.Constraint("DistanceX", -1, 1, 26, 2, 126.784879))
sketch1.addConstraint(Sketcher.Constraint("DistanceX", -1, 1, 31, 2, 149.857558))
sketch1.addConstraint(Sketcher.Constraint("DistanceY", -1, 1, 31, 2, 67.564751))
sketch1.addConstraint(Sketcher.Constraint("DistanceY", -1, 1, 32, 2, 70.563528))
sketch1.addConstraint(Sketcher.Constraint("DistanceX", -1, 1, 34, 1, 156.824589))
sketch1.addConstraint(Sketcher.Constraint("DistanceX", -1, 1, 35, 2, 157.96327))
sketch1.addConstraint(Sketcher.Constraint("DistanceX", -1, 1, 37, 2, 83.557341))
sketch1.addConstraint(Sketcher.Constraint("DistanceX", -1, 1, 38, 1, 89.137159))
sketch1.addConstraint(Sketcher.Constraint("DistanceX", -1, 1, 39, 2, 90.657708))
sketch1.addConstraint(Sketcher.Constraint("DistanceX", -1, 1, 42, 2, 85.43492))
sketch1.addConstraint(Sketcher.Constraint("DistanceY", -1, 1, 44, 2, 80.381882))
sketch1.addConstraint(Sketcher.Constraint("DistanceX", -1, 1, 45, 2, 109.182081))
sketch1.addConstraint(Sketcher.Constraint("DistanceY", -1, 1, 46, 2, 80.49667))
sketch1.addConstraint(Sketcher.Constraint("DistanceX", -1, 1, 47, 2, 104.939811))
sketch1.addConstraint(Sketcher.Constraint("DistanceY", -1, 1, 49, 2, 83.20584))
sketch1.addConstraint(Sketcher.Constraint("DistanceX", -1, 1, 50, 1, 110.414162))
sketch1.addConstraint(Sketcher.Constraint("DistanceX", -1, 1, 51, 2, 111.877258))
sketch1.addConstraint(Sketcher.Constraint("DistanceY", -1, 1, 53, 2, 76.037069))
sketch1.addConstraint(Sketcher.Constraint("DistanceX", -1, 1, 54, 2, 132.117919))
sketch1.addConstraint(Sketcher.Constraint("DistanceY", -1, 1, 55, 2, 75.335152))
sketch1.addConstraint(Sketcher.Constraint("DistanceX", -1, 1, 56, 2, 129.422742))
sketch1.addConstraint(Sketcher.Constraint("DistanceY", -1, 1, 58, 1, 79.049139))
sketch1.addConstraint(Sketcher.Constraint("DistanceX", -1, 1, 59, 2, 136.864081))
sketch1.addConstraint(Sketcher.Constraint("Distance", 4, 6.310213))
sketch1.addConstraint(Sketcher.Constraint("Distance", 11, 6.310213))
sketch1.addConstraint(Sketcher.Constraint("Distance", 19, 6.087822))
sketch1.addConstraint(Sketcher.Constraint("Distance", 25, 6.087822))
sketch1.addConstraint(Sketcher.Constraint("DistanceX", -1, 1, 9, 2, 108.174506))
sketch1.addConstraint(Sketcher.Constraint("DistanceX", -1, 1, 21, 2, 151.489884))
sketch1.addConstraint(Sketcher.Constraint("DistanceX", -1, 1, 29, 2, 154.612295))
pad1 = body.newObject("PartDesign::Pad", "Pad")
pad1.Profile = sketch1
pad1.Length = Q("0.0625 in")
doc.recompute()

fillet = body.newObject("PartDesign::Fillet", "Fillet")
fillet.Base = (pad1, edges_at(pad1, [
    (94.322, 79.924, 0.794),
    (100.453, 80.395, 0.794),
    (115.685, 79.567, 0.794),
    (126.785, 77.486, 0.794),
    (141.286, 73.158, 0.794),
    (146.906, 70.816, 0.794),
    (144.464, 64.955, 0.794),
    (138.844, 67.296, 0.794),
    (125.615, 71.245, 0.794),
    (114.515, 73.326, 0.794),
    (100.94, 74.064, 0.794),
    (94.809, 73.592, 0.794),
]))
fillet.Radius = Q("0.125 in")

doc.recompute()
